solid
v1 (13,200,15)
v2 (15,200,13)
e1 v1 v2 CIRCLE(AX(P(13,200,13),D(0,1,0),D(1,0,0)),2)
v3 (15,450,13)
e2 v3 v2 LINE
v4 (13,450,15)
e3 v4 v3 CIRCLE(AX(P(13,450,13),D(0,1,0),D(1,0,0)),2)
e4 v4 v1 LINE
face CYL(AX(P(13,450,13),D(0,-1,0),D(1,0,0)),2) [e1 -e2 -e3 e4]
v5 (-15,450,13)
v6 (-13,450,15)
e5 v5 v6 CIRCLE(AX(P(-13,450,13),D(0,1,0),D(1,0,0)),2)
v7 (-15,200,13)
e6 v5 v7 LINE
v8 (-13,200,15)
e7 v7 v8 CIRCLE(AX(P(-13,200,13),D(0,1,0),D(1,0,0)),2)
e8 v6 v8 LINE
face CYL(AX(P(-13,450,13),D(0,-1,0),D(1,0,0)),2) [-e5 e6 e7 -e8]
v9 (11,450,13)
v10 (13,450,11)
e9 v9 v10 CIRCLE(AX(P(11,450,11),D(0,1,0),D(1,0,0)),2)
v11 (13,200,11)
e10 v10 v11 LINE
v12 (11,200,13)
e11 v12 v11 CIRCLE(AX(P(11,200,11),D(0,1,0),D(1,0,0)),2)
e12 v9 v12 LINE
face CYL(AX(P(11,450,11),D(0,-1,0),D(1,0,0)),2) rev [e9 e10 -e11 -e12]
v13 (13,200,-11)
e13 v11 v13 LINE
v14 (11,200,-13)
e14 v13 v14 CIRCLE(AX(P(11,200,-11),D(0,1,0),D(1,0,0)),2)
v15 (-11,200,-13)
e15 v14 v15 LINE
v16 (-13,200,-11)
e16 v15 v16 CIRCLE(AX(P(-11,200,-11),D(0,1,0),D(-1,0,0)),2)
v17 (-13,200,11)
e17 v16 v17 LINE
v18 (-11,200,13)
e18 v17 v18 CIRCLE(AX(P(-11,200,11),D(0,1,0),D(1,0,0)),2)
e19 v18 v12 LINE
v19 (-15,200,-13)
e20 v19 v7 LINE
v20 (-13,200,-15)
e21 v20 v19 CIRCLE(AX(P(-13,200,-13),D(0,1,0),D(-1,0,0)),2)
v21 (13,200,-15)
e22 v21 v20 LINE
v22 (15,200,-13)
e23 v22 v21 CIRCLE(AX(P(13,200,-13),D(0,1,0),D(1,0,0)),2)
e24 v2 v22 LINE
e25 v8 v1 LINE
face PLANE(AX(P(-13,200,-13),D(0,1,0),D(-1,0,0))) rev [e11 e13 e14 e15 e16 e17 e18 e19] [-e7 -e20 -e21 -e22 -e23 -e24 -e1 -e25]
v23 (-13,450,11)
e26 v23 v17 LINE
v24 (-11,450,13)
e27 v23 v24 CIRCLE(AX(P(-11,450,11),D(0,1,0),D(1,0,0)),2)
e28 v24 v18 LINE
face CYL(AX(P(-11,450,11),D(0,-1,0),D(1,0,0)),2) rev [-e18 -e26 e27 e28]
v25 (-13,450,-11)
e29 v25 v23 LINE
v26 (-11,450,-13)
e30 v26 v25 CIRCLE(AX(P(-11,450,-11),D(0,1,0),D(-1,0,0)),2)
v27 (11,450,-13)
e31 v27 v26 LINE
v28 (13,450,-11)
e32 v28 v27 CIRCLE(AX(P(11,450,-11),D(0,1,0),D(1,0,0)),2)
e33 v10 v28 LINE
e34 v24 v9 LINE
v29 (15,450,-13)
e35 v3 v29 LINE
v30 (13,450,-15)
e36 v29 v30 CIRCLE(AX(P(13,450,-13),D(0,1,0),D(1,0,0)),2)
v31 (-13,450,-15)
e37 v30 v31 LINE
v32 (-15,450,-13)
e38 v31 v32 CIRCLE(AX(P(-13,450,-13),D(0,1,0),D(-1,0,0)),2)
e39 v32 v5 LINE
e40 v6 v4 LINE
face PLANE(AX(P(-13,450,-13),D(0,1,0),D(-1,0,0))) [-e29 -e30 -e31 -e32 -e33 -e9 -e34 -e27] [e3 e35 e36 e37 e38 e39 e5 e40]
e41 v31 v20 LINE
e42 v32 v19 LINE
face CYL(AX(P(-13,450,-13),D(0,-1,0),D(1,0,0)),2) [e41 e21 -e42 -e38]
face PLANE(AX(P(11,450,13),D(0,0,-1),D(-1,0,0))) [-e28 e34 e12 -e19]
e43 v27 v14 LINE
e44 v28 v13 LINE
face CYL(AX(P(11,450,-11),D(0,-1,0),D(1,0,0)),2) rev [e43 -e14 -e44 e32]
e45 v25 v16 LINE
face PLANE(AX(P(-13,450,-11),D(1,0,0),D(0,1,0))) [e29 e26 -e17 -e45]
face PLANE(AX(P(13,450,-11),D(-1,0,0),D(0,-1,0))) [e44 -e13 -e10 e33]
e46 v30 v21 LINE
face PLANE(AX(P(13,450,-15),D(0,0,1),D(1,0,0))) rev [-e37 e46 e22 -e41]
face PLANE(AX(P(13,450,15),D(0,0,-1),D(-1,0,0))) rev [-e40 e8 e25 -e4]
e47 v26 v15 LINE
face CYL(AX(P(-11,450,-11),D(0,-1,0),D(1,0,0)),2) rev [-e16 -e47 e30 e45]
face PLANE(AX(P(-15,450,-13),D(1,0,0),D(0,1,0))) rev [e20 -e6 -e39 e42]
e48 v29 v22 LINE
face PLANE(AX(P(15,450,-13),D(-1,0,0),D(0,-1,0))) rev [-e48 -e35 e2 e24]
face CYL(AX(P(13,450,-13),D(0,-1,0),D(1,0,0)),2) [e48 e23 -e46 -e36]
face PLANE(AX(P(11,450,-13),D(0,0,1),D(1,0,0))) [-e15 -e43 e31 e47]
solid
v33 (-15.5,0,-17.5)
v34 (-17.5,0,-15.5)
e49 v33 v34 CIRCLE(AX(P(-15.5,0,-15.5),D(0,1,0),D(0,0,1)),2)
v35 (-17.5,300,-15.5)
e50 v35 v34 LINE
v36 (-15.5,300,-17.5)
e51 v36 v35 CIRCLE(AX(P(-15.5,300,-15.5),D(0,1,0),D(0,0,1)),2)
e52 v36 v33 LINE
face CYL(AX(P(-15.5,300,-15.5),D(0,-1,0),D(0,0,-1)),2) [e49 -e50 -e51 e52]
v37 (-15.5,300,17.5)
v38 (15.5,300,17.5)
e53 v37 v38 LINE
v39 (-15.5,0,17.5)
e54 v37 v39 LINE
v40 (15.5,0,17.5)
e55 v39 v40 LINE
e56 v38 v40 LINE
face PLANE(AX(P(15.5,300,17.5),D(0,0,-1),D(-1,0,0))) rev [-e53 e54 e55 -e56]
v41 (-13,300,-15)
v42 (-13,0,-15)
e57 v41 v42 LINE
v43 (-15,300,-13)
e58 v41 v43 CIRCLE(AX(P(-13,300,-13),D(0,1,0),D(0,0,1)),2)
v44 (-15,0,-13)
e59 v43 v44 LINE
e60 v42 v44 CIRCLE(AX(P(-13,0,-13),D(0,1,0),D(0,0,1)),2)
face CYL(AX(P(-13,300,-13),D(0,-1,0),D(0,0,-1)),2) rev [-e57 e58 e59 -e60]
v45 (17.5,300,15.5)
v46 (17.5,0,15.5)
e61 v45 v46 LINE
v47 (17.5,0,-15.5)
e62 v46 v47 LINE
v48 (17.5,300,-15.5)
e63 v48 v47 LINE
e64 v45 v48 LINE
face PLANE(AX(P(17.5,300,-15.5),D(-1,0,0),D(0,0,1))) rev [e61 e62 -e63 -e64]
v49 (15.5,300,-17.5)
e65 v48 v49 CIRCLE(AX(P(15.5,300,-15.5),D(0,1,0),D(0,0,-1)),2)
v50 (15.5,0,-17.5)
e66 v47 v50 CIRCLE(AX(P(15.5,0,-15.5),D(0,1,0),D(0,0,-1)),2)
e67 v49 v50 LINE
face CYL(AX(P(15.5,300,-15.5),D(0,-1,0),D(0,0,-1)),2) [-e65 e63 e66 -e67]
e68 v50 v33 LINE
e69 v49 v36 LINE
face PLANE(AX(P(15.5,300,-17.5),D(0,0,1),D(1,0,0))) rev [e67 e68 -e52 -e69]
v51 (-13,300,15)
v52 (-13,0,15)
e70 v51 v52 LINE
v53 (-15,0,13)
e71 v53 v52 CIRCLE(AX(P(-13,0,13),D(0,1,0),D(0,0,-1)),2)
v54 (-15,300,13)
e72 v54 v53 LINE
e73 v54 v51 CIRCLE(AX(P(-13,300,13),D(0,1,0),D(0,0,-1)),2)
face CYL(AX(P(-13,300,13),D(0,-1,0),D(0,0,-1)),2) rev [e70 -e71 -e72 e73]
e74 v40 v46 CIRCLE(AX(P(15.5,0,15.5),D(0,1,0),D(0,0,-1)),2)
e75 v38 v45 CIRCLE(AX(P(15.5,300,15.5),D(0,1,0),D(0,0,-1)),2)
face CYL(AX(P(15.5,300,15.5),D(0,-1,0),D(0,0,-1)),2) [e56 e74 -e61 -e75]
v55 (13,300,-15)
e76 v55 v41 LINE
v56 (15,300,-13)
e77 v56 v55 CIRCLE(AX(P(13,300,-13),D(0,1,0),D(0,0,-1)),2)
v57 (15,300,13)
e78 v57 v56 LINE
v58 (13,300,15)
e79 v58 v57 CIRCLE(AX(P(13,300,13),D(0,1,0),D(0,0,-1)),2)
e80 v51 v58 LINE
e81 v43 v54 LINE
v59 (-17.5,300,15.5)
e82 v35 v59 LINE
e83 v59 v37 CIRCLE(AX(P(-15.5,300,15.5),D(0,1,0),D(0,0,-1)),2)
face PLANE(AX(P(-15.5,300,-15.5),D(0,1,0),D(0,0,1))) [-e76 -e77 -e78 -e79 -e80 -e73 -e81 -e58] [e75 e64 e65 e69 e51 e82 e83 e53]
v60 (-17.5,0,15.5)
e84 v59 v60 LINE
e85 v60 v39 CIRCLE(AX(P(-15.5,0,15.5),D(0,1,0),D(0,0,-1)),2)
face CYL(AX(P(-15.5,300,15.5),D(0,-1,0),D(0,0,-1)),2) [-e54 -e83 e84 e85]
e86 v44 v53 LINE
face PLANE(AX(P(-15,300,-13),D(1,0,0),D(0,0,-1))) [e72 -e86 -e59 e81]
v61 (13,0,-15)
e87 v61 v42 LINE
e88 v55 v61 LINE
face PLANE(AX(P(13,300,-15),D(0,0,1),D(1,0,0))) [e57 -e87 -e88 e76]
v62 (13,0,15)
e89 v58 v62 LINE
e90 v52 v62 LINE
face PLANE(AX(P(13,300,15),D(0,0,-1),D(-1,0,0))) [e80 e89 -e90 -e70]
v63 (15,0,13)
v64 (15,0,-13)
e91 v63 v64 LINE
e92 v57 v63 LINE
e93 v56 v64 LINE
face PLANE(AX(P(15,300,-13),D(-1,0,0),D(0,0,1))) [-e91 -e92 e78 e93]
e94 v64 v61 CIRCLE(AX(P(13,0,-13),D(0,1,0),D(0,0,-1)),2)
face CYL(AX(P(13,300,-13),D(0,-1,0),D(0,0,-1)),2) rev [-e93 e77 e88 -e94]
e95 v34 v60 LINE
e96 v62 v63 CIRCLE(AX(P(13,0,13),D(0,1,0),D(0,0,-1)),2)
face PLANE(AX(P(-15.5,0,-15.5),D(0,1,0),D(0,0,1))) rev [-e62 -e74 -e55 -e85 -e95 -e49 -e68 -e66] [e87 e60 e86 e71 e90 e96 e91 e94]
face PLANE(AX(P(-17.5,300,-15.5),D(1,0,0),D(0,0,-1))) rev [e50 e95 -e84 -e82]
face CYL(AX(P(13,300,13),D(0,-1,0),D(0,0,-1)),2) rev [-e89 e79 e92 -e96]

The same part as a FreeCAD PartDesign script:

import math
import FreeCAD as App
import Part
import Sketcher
from FreeCAD import Vector
Q = App.Units.Quantity

doc = App.newDocument("Part")
body = doc.addObject("PartDesign::Body", "Body")

sketch1 = doc.addObject("Sketcher::SketchObject", "Sketch")
body.addObject(sketch1)
sketch1.AttachmentSupport = (doc.XZ_Plane, [""])
sketch1.MapMode = "FlatFace"
sketch1.addGeometry([
    Part.LineSegment(Vector(15.5, -17.5, 0), Vector(-15.5, -17.5, 0)),
    Part.ArcOfCircle(Part.Circle(Vector(-15.5, -15.5, 0), Vector(0, 0, 1), 2), math.radians(-180), math.radians(-90)),
    Part.LineSegment(Vector(-17.5, -15.5, 0), Vector(-17.5, 15.5, 0)),
    Part.ArcOfCircle(Part.Circle(Vector(-15.5, 15.5, 0), Vector(0, 0, 1), 2), math.radians(90), math.radians(180)),
    Part.LineSegment(Vector(-15.5, 17.5, 0), Vector(15.5, 17.5, 0)),
    Part.ArcOfCircle(Part.Circle(Vector(15.5, 15.5, 0), Vector(0, 0, 1), 2), math.radians(0), math.radians(90)),
    Part.LineSegment(Vector(17.5, 15.5, 0), Vector(17.5, -15.5, 0)),
    Part.ArcOfCircle(Part.Circle(Vector(15.5, -15.5, 0), Vector(0, 0, 1), 2), math.radians(-90), math.radians(0)),
    Part.LineSegment(Vector(-13, -15, 0), Vector(13, -15, 0)),
    Part.ArcOfCircle(Part.Circle(Vector(13, -13, 0), Vector(0, 0, 1), 2), math.radians(-90), math.radians(0)),
    Part.LineSegment(Vector(15, -13, 0), Vector(15, 13, 0)),
    Part.ArcOfCircle(Part.Circle(Vector(13, 13, 0), Vector(0, 0, 1), 2), math.radians(0), math.radians(90)),
    Part.LineSegment(Vector(13, 15, 0), Vector(-13, 15, 0)),
    Part.ArcOfCircle(Part.Circle(Vector(-13, 13, 0), Vector(0, 0, 1), 2), math.radians(90), math.radians(180)),
    Part.LineSegment(Vector(-15, 13, 0), Vector(-15, -13, 0)),
    Part.ArcOfCircle(Part.Circle(Vector(-13, -13, 0), Vector(0, 0, 1), 2), math.radians(-180), math.radians(-90)),
], False)
sketch1.addConstraint([
    Sketcher.Constraint("Tangent", 0, 2, 1, 2),
    Sketcher.Constraint("Tangent", 1, 1, 2, 1),
    Sketcher.Constraint("Tangent", 2, 2, 3, 2),
    Sketcher.Constraint("Tangent", 3, 1, 4, 1),
    Sketcher.Constraint("Tangent", 4, 2, 5, 2),
    Sketcher.Constraint("Tangent", 5, 1, 6, 1),
    Sketcher.Constraint("Tangent", 6, 2, 7, 2),
    Sketcher.Constraint("Tangent", 7, 1, 0, 1),
    Sketcher.Constraint("Tangent", 8, 2, 9, 1),
    Sketcher.Constraint("Tangent", 9, 2, 10, 1),
    Sketcher.Constraint("Tangent", 10, 2, 11, 1),
    Sketcher.Constraint("Tangent", 11, 2, 12, 1),
    Sketcher.Constraint("Tangent", 12, 2, 13, 1),
    Sketcher.Constraint("Tangent", 13, 2, 14, 1),
    Sketcher.Constraint("Tangent", 14, 2, 15, 1),
    Sketcher.Constraint("Tangent", 15, 2, 8, 1),
    Sketcher.Constraint("Horizontal", 0),
    Sketcher.Constraint("Vertical", 2),
    Sketcher.Constraint("Horizontal", 4),
    Sketcher.Constraint("Vertical", 6),
    Sketcher.Constraint("Horizontal", 8),
    Sketcher.Constraint("Vertical", 10),
    Sketcher.Constraint("Horizontal", 12),
    Sketcher.Constraint("Vertical", 14),
    Sketcher.Constraint("Equal", 1, 3),
    Sketcher.Constraint("Equal", 3, 5),
    Sketcher.Constraint("Equal", 5, 7),
    Sketcher.Constraint("Equal", 7, 9),
    Sketcher.Constraint("Equal", 9, 11),
    Sketcher.Constraint("Equal", 11, 13),
    Sketcher.Constraint("Equal", 13, 15),
    Sketcher.Constraint("Symmetric", 1, 3, 5, 3, -1, 1),
    Sketcher.Constraint("Symmetric", 9, 3, 13, 3, -1, 1),
    Sketcher.Constraint("Equal", 4, 2),
    Sketcher.Constraint("Equal", 12, 10),
    Sketcher.Constraint("Radius", 1, Q("2 mm")),
    Sketcher.Constraint("DistanceX", 0, 2, 0, 1, Q("31 mm")),
    Sketcher.Constraint("DistanceX", 8, 1, 8, 2, Q("26 mm")),
])
pad1 = doc.addObject("PartDesign::Pad", "Pad")
body.addObject(pad1)
pad1.Profile = sketch1
pad1.Length = 300
pad1.Reversed = True
body2 = doc.addObject("PartDesign::Body", "Body001")

sketch2 = doc.addObject("Sketcher::SketchObject", "Sketch001")
body2.addObject(sketch2)
sketch2.AttachmentSupport = (doc.getObject("XZ_Plane001"), [""])
sketch2.MapMode = "FlatFace"
sketch2.AttachmentOffset = App.Placement(Vector(0, 0, -200), App.Rotation())
sketch2.addGeometry([
    Part.LineSegment(Vector(13, -15, 0), Vector(-13, -15, 0)),
    Part.ArcOfCircle(Part.Circle(Vector(-13, -13, 0), Vector(0, 0, 1), 2), math.radians(-180), math.radians(-90)),
    Part.LineSegment(Vector(-15, -13, 0), Vector(-15, 13, 0)),
    Part.ArcOfCircle(Part.Circle(Vector(-13, 13, 0), Vector(0, 0, 1), 2), math.radians(90), math.radians(180)),
    Part.LineSegment(Vector(-13, 15, 0), Vector(13, 15, 0)),
    Part.ArcOfCircle(Part.Circle(Vector(13, 13, 0), Vector(0, 0, 1), 2), math.radians(0), math.radians(90)),
    Part.LineSegment(Vector(15, 13, 0), Vector(15, -13, 0)),
    Part.ArcOfCircle(Part.Circle(Vector(13, -13, 0), Vector(0, 0, 1), 2), math.radians(-90), math.radians(0)),
    Part.LineSegment(Vector(-11, -13, 0), Vector(11, -13, 0)),
    Part.ArcOfCircle(Part.Circle(Vector(11, -11, 0), Vector(0, 0, 1), 2), math.radians(-90), math.radians(0)),
    Part.LineSegment(Vector(13, -11, 0), Vector(13, 11, 0)),
    Part.ArcOfCircle(Part.Circle(Vector(11, 11, 0), Vector(0, 0, 1), 2), math.radians(0), math.radians(90)),
    Part.LineSegment(Vector(11, 13, 0), Vector(-11, 13, 0)),
    Part.ArcOfCircle(Part.Circle(Vector(-11, 11, 0), Vector(0, 0, 1), 2), math.radians(90), math.radians(180)),
    Part.LineSegment(Vector(-13, 11, 0), Vector(-13, -11, 0)),
    Part.ArcOfCircle(Part.Circle(Vector(-11, -11, 0), Vector(0, 0, 1), 2), math.radians(-180), math.radians(-90)),
], False)
sketch2.addConstraint([
    Sketcher.Constraint("Tangent", 0, 2, 1, 2),
    Sketcher.Constraint("Tangent", 1, 1, 2, 1),
    Sketcher.Constraint("Tangent", 2, 2, 3, 2),
    Sketcher.Constraint("Tangent", 3, 1, 4, 1),
    Sketcher.Constraint("Tangent", 4, 2, 5, 2),
    Sketcher.Constraint("Tangent", 5, 1, 6, 1),
    Sketcher.Constraint("Tangent", 6, 2, 7, 2),
    Sketcher.Constraint("Tangent", 7, 1, 0, 1),
    Sketcher.Constraint("Tangent", 8, 2, 9, 1),
    Sketcher.Constraint("Tangent", 9, 2, 10, 1),
    Sketcher.Constraint("Tangent", 10, 2, 11, 1),
    Sketcher.Constraint("Tangent", 11, 2, 12, 1),
    Sketcher.Constraint("Tangent", 12, 2, 13, 1),
    Sketcher.Constraint("Tangent", 13, 2, 14, 1),
    Sketcher.Constraint("Tangent", 14, 2, 15, 1),
    Sketcher.Constraint("Tangent", 15, 2, 8, 1),
    Sketcher.Constraint("Horizontal", 0),
    Sketcher.Constraint("Vertical", 2),
    Sketcher.Constraint("Horizontal", 4),
    Sketcher.Constraint("Vertical", 6),
    Sketcher.Constraint("Horizontal", 8),
    Sketcher.Constraint("Vertical", 10),
    Sketcher.Constraint("Horizontal", 12),
    Sketcher.Constraint("Vertical", 14),
    Sketcher.Constraint("Equal", 1, 3),
    Sketcher.Constraint("Equal", 3, 5),
    Sketcher.Constraint("Equal", 5, 7),
    Sketcher.Constraint("Equal", 7, 9),
    Sketcher.Constraint("Equal", 9, 11),
    Sketcher.Constraint("Equal", 11, 13),
    Sketcher.Constraint("Equal", 13, 15),
    Sketcher.Constraint("Symmetric", 1, 3, 5, 3, -1, 1),
    Sketcher.Constraint("Symmetric", 9, 3, 13, 3, -1, 1),
    Sketcher.Constraint("Horizontal", 6, 2, 8, 2),
    Sketcher.Constraint("Vertical", 7, 1, 9, 2),
    Sketcher.Constraint("Equal", 4, 2),
    Sketcher.Constraint("Radius", 1, Q("2 mm")),
    Sketcher.Constraint("DistanceX", 0, 2, 0, 1, Q("26 mm")),
])
pad2 = doc.addObject("PartDesign::Pad", "Pad001")
body2.addObject(pad2)
pad2.Profile = sketch2
pad2.Length = 250
pad2.Reversed = True

doc.recompute()
